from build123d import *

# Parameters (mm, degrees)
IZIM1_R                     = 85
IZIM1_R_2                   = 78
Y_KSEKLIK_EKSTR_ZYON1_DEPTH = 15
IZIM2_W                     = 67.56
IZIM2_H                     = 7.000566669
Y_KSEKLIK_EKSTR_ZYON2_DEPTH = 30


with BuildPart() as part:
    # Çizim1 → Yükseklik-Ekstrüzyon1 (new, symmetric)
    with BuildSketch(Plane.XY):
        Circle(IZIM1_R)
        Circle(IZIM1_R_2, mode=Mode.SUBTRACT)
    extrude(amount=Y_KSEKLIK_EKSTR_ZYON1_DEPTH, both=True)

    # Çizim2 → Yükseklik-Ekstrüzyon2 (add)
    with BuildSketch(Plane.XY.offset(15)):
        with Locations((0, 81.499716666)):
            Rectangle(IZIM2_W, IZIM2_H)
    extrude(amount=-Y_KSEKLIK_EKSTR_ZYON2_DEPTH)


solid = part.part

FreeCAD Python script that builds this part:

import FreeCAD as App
import Part
import Sketcher
from FreeCAD import Vector
Q = App.Units.Quantity


def add_polygon(sketch, points):
    """Adds a closed chain of lines whose ends are joined by coincident constraints."""
    first, n = sketch.GeometryCount, len(points)
    for a, b in zip(points, points[1:] + points[:1]):
        sketch.addGeometry(Part.LineSegment(App.Vector(*a, 0), App.Vector(*b, 0)), False)
    for i in range(n):
        sketch.addConstraint(Sketcher.Constraint("Coincident", first + i, 2, first + (i + 1) % n, 1))

doc = App.newDocument("Part")
params = doc.addObject("Spreadsheet::Sheet", "Params")
for row, (alias, value) in enumerate([
    ("sketch1_diameter", "170 mm"),
    ("sketch1_diameter2", "156 mm"),
    ("pad1_length", "30 mm"),
    ("sketch2_width", "67.56 mm"),
    ("pad2_length", "30 mm"),
], start=1):
    params.set(f"A{row}", alias)
    params.set(f"B{row}", "=" + value)
    params.setAlias(f"B{row}", alias)

body = doc.addObject("PartDesign::Body", "Body")

# Sketch on XY plane
sketch1 = body.newObject("Sketcher::SketchObject", "Sketch")
sketch1.AttachmentSupport = (doc.getObject("XY_Plane"), [""])
sketch1.MapMode = "FlatFace"
sketch1.addGeometry([
    Part.Circle(Vector(0, 0, 0), Vector(0, 0, 1), 85),
    Part.Circle(Vector(0, 0, 0), Vector(0, 0, 1), 78),
], False)
sketch1.addConstraint([
    Sketcher.Constraint("Coincident", 0, 3, -1, 1),
    Sketcher.Constraint("Coincident", 1, 3, -1, 1),
    Sketcher.Constraint("Diameter", 0, Q("170 mm")),
    Sketcher.Constraint("Diameter", 1, Q("156 mm")),
])
sketch1.setExpression("Constraints[2]", "Params.sketch1_diameter")
sketch1.setExpression("Constraints[3]", "Params.sketch1_diameter2")
pad1 = body.newObject("PartDesign::Pad", "Pad")
pad1.Profile = sketch1
pad1.setExpression("Length", "Params.pad1_length")
pad1.Midplane = True

# Sketch on XY plane
sketch2 = body.newObject("Sketcher::SketchObject", "Sketch001")
sketch2.AttachmentSupport = (doc.getObject("XY_Plane"), [""])
sketch2.MapMode = "FlatFace"
sketch2.AttachmentOffset = App.Placement(Vector(0, 0, 15), App.Rotation())
add_polygon(sketch2, [(-34, 85), (-34, 78), (34, 78), (34, 85)])  # lines 0-3
sketch2.addConstraint([
    Sketcher.Constraint("Vertical", 0),
    Sketcher.Constraint("Horizontal", 1),
    Sketcher.Constraint("Vertical", 2),
    Sketcher.Constraint("Horizontal", 3),
    Sketcher.Constraint("DistanceY", -1, 1, 2, 2, Q("85 mm")),
    Sketcher.Constraint("DistanceX", 1, 1, 1, 2, Q("67.56 mm")),
    Sketcher.Constraint("DistanceX", 0, 2, -1, 1, Q("33.78 mm")),
    Sketcher.Constraint("DistanceY", 0, 2, 0, 1, Q("7.000567 mm")),
])
sketch2.setExpression("Constraints[9]", "Params.sketch2_width")
pad2 = body.newObject("PartDesign::Pad", "Pad001")
pad2.Profile = sketch2
pad2.setExpression("Length", "Params.pad2_length")
pad2.Reversed = True

doc.recompute()
